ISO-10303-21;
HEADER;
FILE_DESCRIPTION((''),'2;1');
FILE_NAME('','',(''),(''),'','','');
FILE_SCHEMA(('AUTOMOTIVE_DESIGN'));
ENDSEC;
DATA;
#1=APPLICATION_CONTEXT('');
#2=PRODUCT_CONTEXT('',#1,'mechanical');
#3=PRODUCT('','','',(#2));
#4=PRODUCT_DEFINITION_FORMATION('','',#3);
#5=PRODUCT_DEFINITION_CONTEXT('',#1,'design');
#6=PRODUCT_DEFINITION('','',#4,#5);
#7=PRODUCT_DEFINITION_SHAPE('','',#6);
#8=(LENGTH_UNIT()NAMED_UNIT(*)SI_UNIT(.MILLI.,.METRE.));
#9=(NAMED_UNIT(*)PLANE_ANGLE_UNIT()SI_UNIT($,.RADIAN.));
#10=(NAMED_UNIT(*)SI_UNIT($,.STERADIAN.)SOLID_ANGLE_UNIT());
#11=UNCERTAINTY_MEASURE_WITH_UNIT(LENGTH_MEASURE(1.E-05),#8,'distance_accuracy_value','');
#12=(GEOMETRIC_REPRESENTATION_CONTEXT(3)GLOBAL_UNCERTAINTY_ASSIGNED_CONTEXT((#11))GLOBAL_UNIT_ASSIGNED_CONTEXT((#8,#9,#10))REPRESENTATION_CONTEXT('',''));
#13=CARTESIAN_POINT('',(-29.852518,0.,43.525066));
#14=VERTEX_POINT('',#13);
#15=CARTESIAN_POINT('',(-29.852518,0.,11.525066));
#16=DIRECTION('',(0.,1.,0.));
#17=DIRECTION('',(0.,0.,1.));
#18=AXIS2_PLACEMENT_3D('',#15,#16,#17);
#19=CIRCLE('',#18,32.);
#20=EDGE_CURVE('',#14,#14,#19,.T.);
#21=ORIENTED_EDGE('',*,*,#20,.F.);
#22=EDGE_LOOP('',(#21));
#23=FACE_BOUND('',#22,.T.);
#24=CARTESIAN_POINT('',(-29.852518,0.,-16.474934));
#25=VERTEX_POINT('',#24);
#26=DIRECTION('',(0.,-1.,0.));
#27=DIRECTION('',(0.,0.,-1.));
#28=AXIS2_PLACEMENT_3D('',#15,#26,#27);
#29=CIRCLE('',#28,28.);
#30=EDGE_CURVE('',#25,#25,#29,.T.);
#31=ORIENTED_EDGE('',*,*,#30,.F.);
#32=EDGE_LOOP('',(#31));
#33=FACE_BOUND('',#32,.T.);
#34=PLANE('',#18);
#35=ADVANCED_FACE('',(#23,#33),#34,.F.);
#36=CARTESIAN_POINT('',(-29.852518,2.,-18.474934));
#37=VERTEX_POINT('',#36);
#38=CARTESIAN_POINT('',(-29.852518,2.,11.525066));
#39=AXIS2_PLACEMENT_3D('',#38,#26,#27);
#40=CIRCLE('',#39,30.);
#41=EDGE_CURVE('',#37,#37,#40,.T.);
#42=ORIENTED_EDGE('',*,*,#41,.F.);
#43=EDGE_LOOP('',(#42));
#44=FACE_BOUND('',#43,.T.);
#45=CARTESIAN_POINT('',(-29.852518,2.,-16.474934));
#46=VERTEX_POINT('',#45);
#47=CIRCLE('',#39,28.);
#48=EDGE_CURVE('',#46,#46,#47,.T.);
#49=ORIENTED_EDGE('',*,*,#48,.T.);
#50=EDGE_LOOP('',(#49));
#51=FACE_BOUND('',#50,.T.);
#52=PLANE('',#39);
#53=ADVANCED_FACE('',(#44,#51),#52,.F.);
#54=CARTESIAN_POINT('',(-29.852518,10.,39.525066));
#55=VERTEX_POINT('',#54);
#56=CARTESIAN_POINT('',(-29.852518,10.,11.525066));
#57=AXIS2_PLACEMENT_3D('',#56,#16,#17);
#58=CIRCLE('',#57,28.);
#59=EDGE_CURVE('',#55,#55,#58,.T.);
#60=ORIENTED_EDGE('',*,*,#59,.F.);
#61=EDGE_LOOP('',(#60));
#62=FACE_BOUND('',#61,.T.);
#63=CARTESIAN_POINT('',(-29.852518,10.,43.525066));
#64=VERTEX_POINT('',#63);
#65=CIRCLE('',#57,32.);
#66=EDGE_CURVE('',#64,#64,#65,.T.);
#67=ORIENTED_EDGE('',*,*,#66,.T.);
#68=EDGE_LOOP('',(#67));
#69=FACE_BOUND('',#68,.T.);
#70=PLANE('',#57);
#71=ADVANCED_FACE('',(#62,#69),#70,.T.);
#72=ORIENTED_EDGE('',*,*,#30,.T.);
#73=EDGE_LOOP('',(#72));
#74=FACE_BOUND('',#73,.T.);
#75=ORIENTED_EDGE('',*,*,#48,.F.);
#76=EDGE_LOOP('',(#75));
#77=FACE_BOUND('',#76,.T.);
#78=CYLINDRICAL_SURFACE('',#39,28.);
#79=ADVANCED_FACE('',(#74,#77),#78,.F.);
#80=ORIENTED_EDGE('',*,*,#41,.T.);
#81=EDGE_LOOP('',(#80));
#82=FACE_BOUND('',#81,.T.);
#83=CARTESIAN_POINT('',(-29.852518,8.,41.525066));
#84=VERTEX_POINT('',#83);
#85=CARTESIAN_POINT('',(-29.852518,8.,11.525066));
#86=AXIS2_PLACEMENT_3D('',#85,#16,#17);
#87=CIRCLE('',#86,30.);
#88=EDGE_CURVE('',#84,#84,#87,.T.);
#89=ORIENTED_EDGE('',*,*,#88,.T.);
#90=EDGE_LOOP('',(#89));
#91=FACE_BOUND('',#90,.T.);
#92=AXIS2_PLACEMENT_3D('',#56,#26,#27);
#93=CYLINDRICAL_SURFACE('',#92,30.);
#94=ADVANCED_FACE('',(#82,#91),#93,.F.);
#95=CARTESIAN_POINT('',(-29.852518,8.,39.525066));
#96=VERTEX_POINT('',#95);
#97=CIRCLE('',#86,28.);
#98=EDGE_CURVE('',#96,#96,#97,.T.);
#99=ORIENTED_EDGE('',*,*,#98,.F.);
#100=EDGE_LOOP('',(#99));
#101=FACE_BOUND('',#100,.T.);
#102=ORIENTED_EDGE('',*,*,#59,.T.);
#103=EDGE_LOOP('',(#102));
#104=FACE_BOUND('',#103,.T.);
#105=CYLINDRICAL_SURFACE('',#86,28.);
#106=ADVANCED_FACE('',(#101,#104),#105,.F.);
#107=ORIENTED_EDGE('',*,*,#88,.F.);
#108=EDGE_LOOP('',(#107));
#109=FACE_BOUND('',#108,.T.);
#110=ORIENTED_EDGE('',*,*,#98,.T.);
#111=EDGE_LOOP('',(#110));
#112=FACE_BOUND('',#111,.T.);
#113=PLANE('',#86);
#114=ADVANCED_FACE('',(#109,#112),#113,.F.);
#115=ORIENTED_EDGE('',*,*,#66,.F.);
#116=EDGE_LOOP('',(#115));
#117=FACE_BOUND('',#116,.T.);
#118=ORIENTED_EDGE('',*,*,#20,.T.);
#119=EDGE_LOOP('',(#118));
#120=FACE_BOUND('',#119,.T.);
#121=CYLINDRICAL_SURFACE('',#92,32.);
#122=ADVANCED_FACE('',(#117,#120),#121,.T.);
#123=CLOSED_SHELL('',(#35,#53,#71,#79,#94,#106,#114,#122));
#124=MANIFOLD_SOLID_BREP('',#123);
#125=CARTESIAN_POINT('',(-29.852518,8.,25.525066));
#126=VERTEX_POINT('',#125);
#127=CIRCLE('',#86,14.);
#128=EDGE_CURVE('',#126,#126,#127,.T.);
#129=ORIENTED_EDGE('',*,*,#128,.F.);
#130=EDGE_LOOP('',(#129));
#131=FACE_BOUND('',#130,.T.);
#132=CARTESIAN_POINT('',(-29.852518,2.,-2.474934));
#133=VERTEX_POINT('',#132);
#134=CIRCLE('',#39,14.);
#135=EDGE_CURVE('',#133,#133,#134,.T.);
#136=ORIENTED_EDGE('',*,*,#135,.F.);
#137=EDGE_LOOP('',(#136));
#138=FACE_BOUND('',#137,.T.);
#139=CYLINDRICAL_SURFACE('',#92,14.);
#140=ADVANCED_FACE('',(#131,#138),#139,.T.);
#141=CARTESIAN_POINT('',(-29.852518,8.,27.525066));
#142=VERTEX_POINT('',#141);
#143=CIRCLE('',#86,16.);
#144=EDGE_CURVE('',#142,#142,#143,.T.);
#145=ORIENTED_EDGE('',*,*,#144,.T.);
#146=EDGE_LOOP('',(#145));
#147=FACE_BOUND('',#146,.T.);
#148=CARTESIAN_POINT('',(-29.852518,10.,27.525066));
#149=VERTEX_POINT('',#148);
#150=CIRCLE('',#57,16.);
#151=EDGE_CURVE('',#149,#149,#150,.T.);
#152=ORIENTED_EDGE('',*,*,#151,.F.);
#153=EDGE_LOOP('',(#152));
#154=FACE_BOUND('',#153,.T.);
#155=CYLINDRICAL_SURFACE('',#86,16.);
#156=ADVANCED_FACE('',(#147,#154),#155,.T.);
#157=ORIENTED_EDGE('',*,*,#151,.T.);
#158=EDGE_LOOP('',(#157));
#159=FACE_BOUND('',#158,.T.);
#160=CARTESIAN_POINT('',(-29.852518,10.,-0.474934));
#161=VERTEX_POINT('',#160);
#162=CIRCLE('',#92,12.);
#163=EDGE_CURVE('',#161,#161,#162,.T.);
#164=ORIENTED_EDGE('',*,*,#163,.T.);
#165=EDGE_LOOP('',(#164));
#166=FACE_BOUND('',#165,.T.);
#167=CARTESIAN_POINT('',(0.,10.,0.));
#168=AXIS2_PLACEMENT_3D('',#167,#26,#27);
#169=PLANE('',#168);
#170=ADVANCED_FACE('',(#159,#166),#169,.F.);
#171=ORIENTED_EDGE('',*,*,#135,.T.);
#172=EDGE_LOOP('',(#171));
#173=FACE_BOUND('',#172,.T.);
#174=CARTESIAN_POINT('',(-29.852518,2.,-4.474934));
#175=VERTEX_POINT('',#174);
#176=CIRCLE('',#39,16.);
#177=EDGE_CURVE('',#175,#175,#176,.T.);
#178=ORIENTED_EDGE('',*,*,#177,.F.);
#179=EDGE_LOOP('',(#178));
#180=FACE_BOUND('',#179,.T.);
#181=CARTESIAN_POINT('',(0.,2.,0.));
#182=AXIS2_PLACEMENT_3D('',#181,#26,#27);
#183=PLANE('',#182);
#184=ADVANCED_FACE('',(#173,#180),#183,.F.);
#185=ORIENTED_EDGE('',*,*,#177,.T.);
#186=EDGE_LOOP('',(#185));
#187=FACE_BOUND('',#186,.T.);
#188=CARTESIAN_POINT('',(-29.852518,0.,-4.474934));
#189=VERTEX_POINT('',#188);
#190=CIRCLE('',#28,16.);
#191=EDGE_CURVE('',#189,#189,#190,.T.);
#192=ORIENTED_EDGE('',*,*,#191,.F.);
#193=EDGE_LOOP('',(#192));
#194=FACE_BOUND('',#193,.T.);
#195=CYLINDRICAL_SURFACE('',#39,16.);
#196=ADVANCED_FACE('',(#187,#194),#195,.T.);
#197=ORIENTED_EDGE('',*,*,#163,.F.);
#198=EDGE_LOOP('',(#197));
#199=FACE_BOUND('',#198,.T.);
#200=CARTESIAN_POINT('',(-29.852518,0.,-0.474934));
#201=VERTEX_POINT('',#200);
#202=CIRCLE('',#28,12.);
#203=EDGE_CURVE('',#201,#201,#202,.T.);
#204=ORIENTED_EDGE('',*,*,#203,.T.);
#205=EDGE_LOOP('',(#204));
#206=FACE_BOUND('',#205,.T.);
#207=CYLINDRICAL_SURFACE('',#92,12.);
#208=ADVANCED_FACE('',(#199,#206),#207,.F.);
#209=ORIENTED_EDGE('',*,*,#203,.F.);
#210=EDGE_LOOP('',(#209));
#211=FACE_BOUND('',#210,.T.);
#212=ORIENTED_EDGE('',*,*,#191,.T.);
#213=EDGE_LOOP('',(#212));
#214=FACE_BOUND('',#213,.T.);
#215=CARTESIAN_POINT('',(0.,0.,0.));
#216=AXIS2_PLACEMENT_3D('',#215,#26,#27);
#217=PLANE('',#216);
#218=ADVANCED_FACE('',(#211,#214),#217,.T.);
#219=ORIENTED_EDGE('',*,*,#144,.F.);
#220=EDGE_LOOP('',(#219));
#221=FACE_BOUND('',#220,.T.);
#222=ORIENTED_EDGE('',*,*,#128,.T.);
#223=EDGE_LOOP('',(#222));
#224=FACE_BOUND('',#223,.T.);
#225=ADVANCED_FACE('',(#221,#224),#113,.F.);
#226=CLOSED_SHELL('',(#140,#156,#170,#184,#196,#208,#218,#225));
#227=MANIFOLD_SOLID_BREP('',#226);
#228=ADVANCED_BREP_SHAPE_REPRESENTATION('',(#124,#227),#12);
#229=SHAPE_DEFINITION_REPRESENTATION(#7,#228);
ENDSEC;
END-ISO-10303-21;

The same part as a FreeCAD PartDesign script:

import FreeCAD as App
import Part
import Sketcher

V = App.Vector

doc = App.newDocument("Part")
body = doc.addObject("PartDesign::Body", "Body")

sketch1 = doc.addObject("Sketcher::SketchObject", "Sketch")
body.addObject(sketch1)
sketch1.AttachmentSupport = (doc.XZ_Plane, [""])
sketch1.MapMode = "FlatFace"
sketch1.addGeometry(Part.Circle(V(-30, 12, 0), V(0, 0, 1), 32), False)
sketch1.addGeometry(Part.Circle(V(-30, 12, 0), V(0, 0, 1), 30), False)
sketch1.addConstraint(Sketcher.Constraint("Coincident", 1, 3, 0, 3))
sketch1.addConstraint(Sketcher.Constraint("Diameter", 0, 64.0))
sketch1.addConstraint(Sketcher.Constraint("Diameter", 1, 60.0))
sketch1.addConstraint(Sketcher.Constraint("DistanceX", 0, 3, -1, 1, 29.852518))
sketch1.addConstraint(Sketcher.Constraint("DistanceY", -1, 1, 0, 3, 11.525066))
pad1 = doc.addObject("PartDesign::Pad", "Pad")
body.addObject(pad1)
pad1.Profile = sketch1
pad1.Length = 10
pad1.Reversed = True

sketch2 = doc.addObject("Sketcher::SketchObject", "Sketch001")
body.addObject(sketch2)
sketch2.AttachmentSupport = (doc.XZ_Plane, [""])
sketch2.MapMode = "FlatFace"
sketch2.addGeometry(Part.Circle(V(-30, 12, 0), V(0, 0, 1), 30), False)
sketch2.addGeometry(Part.Circle(V(-30, 12, 0), V(0, 0, 1), 28), False)
sketch2.addConstraint(Sketcher.Constraint("Coincident", 1, 3, 0, 3))
sketch2.addConstraint(Sketcher.Constraint("Diameter", 0, 60.0))
sketch2.addConstraint(Sketcher.Constraint("Diameter", 1, 56.0))
sketch2.addConstraint(Sketcher.Constraint("DistanceX", 0, 3, -1, 1, 29.852518))
sketch2.addConstraint(Sketcher.Constraint("DistanceY", -1, 1, 0, 3, 11.525066))
pad2 = doc.addObject("PartDesign::Pad", "Pad001")
body.addObject(pad2)
pad2.Profile = sketch2
pad2.Length = 2
pad2.Reversed = True

sketch3 = doc.addObject("Sketcher::SketchObject", "Sketch002")
body.addObject(sketch3)
sketch3.AttachmentSupport = (doc.XZ_Plane, [""])
sketch3.MapMode = "FlatFace"
sketch3.AttachmentOffset = App.Placement(V(0, 0, -8), App.Rotation())
sketch3.addGeometry(Part.Circle(V(-30, 12, 0), V(0, 0, 1), 30), False)
sketch3.addGeometry(Part.Circle(V(-30, 12, 0), V(0, 0, 1), 28), False)
sketch3.addConstraint(Sketcher.Constraint("Coincident", 1, 3, 0, 3))
sketch3.addConstraint(Sketcher.Constraint("Diameter", 0, 60.0))
sketch3.addConstraint(Sketcher.Constraint("Diameter", 1, 56.0))
sketch3.addConstraint(Sketcher.Constraint("DistanceX", 0, 3, -1, 1, 29.852518))
sketch3.addConstraint(Sketcher.Constraint("DistanceY", -1, 1, 0, 3, 11.525066))
pad3 = doc.addObject("PartDesign::Pad", "Pad002")
body.addObject(pad3)
pad3.Profile = sketch3
pad3.Length = 2
pad3.Reversed = True
body2 = doc.addObject("PartDesign::Body", "Body001")

sketch4 = doc.addObject("Sketcher::SketchObject", "Sketch003")
body2.addObject(sketch4)
sketch4.AttachmentSupport = (doc.getObject("XZ_Plane001"), [""])
sketch4.MapMode = "FlatFace"
sketch4.addGeometry(Part.Circle(V(-30, 12, 0), V(0, 0, 1), 14), False)
sketch4.addGeometry(Part.Circle(V(-30, 12, 0), V(0, 0, 1), 12), False)
sketch4.addConstraint(Sketcher.Constraint("Coincident", 1, 3, 0, 3))
sketch4.addConstraint(Sketcher.Constraint("Diameter", 0, 28.0))
sketch4.addConstraint(Sketcher.Constraint("Diameter", 1, 24.0))
sketch4.addConstraint(Sketcher.Constraint("DistanceX", 0, 3, -1, 1, 29.852518))
sketch4.addConstraint(Sketcher.Constraint("DistanceY", -1, 1, 0, 3, 11.525066))
pad4 = doc.addObject("PartDesign::Pad", "Pad003")
body2.addObject(pad4)
pad4.Profile = sketch4
pad4.Length = 10
pad4.Reversed = True

sketch5 = doc.addObject("Sketcher::SketchObject", "Sketch004")
body2.addObject(sketch5)
sketch5.AttachmentSupport = (doc.getObject("XZ_Plane001"), [""])
sketch5.MapMode = "FlatFace"
sketch5.addGeometry(Part.Circle(V(-30, 12, 0), V(0, 0, 1), 16), False)
sketch5.addGeometry(Part.Circle(V(-30, 12, 0), V(0, 0, 1), 14), False)
sketch5.addConstraint(Sketcher.Constraint("Coincident", 1, 3, 0, 3))
sketch5.addConstraint(Sketcher.Constraint("Diameter", 0, 32.0))
sketch5.addConstraint(Sketcher.Constraint("Diameter", 1, 28.0))
sketch5.addConstraint(Sketcher.Constraint("DistanceX", 0, 3, -1, 1, 29.852518))
sketch5.addConstraint(Sketcher.Constraint("DistanceY", -1, 1, 0, 3, 11.525066))
pad5 = doc.addObject("PartDesign::Pad", "Pad004")
body2.addObject(pad5)
pad5.Profile = sketch5
pad5.Length = 2
pad5.Reversed = True

sketch6 = doc.addObject("Sketcher::SketchObject", "Sketch005")
body2.addObject(sketch6)
sketch6.AttachmentSupport = (doc.getObject("XZ_Plane001"), [""])
sketch6.MapMode = "FlatFace"
sketch6.AttachmentOffset = App.Placement(V(0, 0, -10), App.Rotation())
sketch6.addGeometry(Part.Circle(V(-30, 12, 0), V(0, 0, 1), 16), False)
sketch6.addGeometry(Part.Circle(V(-30, 12, 0), V(0, 0, 1), 14), False)
sketch6.addConstraint(Sketcher.Constraint("Coincident", 1, 3, 0, 3))
sketch6.addConstraint(Sketcher.Constraint("Diameter", 0, 32.0))
sketch6.addConstraint(Sketcher.Constraint("Diameter", 1, 28.0))
sketch6.addConstraint(Sketcher.Constraint("DistanceX", 0, 3, -1, 1, 29.852518))
sketch6.addConstraint(Sketcher.Constraint("DistanceY", -1, 1, 0, 3, 11.525066))
pad6 = doc.addObject("PartDesign::Pad", "Pad005")
body2.addObject(pad6)
pad6.Profile = sketch6
pad6.Length = 2

doc.recompute()
